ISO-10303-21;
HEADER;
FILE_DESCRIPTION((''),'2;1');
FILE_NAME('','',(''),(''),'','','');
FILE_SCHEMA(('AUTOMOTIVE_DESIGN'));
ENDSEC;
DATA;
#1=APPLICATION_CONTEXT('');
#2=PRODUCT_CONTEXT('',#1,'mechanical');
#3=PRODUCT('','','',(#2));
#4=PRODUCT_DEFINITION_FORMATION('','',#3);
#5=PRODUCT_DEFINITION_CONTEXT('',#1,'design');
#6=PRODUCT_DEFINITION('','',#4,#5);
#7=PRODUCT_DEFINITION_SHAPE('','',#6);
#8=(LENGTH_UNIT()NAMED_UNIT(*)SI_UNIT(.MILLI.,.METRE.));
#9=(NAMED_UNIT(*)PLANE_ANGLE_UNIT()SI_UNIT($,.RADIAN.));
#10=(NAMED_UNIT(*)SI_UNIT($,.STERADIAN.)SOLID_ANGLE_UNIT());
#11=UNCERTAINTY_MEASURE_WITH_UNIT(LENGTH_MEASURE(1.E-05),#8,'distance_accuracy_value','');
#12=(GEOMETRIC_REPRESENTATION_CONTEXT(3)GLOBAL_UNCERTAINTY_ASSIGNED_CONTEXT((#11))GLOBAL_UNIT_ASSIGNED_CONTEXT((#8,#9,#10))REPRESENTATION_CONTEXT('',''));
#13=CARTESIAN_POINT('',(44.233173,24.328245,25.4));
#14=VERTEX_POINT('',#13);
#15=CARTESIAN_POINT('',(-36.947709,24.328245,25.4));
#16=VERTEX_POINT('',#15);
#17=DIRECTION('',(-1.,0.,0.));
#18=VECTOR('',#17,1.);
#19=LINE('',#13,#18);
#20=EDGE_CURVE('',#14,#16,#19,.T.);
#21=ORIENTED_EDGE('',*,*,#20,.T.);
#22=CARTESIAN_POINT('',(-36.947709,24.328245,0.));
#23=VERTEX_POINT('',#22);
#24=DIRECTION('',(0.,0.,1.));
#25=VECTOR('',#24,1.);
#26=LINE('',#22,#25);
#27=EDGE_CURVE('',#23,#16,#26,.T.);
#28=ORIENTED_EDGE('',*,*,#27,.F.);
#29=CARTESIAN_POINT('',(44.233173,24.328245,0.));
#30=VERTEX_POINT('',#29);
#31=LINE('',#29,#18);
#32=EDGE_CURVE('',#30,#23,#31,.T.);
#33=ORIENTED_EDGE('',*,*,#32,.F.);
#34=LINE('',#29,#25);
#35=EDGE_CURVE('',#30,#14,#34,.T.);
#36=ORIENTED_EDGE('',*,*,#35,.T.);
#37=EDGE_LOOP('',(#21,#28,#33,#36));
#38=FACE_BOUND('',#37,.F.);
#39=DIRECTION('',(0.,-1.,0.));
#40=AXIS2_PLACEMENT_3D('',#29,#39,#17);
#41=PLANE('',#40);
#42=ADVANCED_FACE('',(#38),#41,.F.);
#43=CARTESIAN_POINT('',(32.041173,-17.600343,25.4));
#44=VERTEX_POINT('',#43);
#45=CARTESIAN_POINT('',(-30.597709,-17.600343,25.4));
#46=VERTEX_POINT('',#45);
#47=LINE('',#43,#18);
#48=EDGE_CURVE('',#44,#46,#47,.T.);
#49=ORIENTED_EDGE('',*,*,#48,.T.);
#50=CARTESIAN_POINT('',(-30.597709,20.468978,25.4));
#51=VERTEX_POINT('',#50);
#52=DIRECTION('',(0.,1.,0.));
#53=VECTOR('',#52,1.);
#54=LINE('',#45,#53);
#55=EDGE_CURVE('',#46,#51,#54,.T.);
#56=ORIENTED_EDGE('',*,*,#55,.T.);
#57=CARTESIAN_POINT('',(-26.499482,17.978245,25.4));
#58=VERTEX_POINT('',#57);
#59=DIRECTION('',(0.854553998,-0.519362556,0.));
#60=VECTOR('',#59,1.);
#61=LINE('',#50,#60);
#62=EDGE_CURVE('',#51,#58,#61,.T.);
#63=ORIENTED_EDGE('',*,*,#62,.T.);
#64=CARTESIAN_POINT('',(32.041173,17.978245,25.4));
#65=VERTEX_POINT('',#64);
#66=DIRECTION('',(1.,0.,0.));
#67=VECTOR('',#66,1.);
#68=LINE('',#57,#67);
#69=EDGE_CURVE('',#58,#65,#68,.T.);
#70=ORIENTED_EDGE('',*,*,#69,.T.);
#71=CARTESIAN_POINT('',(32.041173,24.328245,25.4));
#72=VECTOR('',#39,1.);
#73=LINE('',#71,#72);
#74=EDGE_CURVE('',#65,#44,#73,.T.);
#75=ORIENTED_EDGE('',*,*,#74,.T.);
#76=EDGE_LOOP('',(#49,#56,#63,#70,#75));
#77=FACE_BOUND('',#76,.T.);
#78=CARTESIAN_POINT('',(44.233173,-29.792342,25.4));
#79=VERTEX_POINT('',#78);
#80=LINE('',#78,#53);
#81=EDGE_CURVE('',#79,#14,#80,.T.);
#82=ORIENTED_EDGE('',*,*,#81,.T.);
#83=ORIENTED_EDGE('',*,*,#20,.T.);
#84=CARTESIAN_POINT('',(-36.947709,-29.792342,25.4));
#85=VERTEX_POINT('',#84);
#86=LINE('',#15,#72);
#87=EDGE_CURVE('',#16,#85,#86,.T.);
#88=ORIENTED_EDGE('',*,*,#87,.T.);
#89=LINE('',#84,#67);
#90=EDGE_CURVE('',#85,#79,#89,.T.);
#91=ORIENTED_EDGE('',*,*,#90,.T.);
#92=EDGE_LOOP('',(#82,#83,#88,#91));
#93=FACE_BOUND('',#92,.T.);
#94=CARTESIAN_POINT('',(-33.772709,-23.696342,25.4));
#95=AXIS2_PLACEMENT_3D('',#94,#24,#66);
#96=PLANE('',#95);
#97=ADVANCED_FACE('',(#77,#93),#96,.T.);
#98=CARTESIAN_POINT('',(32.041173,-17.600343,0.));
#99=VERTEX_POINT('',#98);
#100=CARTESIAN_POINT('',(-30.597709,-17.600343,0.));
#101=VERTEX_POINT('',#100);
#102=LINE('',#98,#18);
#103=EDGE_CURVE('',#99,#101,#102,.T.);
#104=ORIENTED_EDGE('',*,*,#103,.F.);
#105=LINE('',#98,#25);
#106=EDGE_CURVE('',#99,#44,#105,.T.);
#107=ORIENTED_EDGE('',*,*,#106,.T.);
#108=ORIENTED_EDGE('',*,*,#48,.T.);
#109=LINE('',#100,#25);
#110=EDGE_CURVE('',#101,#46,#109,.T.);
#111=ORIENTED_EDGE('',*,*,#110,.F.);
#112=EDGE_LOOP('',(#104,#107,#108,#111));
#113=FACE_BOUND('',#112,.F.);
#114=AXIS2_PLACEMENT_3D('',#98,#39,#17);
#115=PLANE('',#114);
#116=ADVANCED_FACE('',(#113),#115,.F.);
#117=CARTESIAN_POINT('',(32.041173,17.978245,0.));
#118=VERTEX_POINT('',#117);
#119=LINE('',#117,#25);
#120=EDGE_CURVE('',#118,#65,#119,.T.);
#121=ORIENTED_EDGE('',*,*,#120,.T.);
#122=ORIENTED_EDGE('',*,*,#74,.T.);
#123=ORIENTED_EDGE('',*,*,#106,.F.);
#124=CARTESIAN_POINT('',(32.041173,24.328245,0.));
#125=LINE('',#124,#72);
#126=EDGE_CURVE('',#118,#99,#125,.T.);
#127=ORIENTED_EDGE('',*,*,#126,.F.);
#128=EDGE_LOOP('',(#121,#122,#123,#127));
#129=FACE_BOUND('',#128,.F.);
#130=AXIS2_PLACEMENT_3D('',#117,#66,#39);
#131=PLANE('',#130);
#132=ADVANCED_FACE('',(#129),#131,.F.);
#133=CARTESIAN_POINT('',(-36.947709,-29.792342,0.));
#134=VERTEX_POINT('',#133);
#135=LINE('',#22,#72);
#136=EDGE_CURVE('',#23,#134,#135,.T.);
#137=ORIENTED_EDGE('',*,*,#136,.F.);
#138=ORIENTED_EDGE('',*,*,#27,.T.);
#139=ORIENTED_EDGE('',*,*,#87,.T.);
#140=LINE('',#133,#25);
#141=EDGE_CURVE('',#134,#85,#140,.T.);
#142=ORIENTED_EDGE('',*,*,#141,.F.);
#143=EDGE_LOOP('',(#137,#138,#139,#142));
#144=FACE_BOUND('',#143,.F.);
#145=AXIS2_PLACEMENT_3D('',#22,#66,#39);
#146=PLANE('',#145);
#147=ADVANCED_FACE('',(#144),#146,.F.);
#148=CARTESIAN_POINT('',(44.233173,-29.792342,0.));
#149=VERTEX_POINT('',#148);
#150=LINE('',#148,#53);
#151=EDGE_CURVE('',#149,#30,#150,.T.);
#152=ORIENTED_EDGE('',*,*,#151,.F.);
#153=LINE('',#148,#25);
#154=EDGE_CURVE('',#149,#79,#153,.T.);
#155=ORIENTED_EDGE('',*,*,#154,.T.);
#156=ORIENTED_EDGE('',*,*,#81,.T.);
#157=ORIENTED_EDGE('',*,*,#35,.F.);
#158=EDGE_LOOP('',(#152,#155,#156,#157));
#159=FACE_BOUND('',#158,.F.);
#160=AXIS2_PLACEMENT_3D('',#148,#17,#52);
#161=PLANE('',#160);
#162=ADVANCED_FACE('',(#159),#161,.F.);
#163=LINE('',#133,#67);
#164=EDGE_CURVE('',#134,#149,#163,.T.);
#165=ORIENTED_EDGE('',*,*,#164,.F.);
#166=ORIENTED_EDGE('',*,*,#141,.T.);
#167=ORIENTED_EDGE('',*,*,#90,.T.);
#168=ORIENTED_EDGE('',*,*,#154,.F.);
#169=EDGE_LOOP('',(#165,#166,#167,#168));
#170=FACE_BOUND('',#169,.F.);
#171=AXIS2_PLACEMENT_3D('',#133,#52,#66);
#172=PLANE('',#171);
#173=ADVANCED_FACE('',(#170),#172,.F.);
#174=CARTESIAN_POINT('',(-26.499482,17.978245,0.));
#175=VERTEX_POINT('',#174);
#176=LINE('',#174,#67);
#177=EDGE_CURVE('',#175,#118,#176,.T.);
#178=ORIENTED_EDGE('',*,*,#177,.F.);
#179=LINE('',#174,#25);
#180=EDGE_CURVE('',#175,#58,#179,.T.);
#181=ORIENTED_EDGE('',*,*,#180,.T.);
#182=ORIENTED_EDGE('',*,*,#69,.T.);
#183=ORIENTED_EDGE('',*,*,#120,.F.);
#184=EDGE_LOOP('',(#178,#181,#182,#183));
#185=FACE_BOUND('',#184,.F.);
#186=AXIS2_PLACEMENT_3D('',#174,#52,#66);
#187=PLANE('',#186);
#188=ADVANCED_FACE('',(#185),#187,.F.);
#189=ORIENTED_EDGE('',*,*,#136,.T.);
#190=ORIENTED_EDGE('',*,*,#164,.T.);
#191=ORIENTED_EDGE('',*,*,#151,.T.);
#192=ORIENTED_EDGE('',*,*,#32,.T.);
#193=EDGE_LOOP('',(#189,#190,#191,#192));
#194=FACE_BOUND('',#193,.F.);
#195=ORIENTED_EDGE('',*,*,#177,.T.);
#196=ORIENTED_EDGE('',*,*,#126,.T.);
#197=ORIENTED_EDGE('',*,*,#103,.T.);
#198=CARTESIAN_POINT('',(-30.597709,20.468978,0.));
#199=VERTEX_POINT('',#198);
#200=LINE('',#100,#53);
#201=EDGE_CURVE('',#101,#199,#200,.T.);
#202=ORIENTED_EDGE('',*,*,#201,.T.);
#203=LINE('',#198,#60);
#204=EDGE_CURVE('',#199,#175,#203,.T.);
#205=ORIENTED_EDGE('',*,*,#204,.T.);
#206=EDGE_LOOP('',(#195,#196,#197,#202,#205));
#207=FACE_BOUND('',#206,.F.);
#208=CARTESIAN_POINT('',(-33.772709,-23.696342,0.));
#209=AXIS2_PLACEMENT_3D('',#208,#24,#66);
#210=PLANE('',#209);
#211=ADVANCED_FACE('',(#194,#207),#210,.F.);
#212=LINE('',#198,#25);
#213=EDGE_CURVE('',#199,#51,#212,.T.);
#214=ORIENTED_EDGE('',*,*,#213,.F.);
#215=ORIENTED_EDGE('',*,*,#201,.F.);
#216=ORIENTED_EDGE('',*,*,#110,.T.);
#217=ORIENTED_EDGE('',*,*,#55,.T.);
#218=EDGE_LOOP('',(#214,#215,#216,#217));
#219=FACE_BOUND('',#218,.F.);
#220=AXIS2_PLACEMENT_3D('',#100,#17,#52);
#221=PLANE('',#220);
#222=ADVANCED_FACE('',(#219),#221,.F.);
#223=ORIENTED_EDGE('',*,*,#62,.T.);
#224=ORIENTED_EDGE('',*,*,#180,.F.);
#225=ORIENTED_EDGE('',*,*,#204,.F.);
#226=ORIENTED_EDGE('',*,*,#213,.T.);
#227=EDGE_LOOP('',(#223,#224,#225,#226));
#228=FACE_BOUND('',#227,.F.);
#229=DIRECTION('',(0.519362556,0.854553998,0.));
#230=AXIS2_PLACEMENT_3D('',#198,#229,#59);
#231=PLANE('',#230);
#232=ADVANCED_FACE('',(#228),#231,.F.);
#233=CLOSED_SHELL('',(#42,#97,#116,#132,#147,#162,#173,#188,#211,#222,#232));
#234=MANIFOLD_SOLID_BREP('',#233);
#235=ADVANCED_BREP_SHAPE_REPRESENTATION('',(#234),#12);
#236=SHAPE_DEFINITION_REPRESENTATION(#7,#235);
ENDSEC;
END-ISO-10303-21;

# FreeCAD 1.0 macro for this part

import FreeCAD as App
import Part
import Sketcher
from FreeCAD import Vector
Q = App.Units.Quantity


def add_polygon(sketch, points):
    """Adds a closed chain of lines whose ends are joined by coincident constraints."""
    first, n = sketch.GeometryCount, len(points)
    for a, b in zip(points, points[1:] + points[:1]):
        sketch.addGeometry(Part.LineSegment(App.Vector(*a, 0), App.Vector(*b, 0)), False)
    for i in range(n):
        sketch.addConstraint(Sketcher.Constraint("Coincident", first + i, 2, first + (i + 1) % n, 1))

doc = App.newDocument("Part")
body = doc.addObject("PartDesign::Body", "Body")

# Sketch on XY plane
sketch1 = body.newObject("Sketcher::SketchObject", "Sketch")
sketch1.AttachmentSupport = (doc.getObject("XY_Plane"), [""])
sketch1.MapMode = "FlatFace"
add_polygon(sketch1, [(-36.9, -29.8), (44.2, -29.8), (44.2, 24.3), (-36.9, 24.3)])  # lines 0-3
add_polygon(sketch1, [(32, 18), (32, -17.6), (-30.6, -17.6), (-30.6, 20.5), (-26.5, 18)])  # lines 4-8
sketch1.addConstraint([
    Sketcher.Constraint("Horizontal", 0),
    Sketcher.Constraint("Vertical", 1),
    Sketcher.Constraint("Horizontal", 2),
    Sketcher.Constraint("Vertical", 3),
    Sketcher.Constraint("Vertical", 4),
    Sketcher.Constraint("Horizontal", 5),
    Sketcher.Constraint("Vertical", 6),
    Sketcher.Constraint("Horizontal", 8),
    Sketcher.Constraint("DistanceX", 4, 2, 0, 2, Q("0.48 in")),
    Sketcher.Constraint("DistanceY", 0, 2, 4, 2, Q("0.48 in")),
    Sketcher.Constraint("DistanceX", 3, 2, 5, 2, Q("0.25 in")),
    Sketcher.Constraint("DistanceY", 7, 2, 2, 2, Q("0.25 in")),
    Sketcher.Constraint("DistanceX", 0, 1, 0, 2, 81.180882),
    Sketcher.Constraint("DistanceY", 6, 1, 6, 2, 38.06932),
    Sketcher.Constraint("Distance", 7, 4.79575),
    Sketcher.Constraint("DistanceX", 8, 1, 8, 2, 58.540655),
    Sketcher.Constraint("DistanceX", 2, 2, -1, 1, 36.947709),
    Sketcher.Constraint("DistanceY", 0, 2, -1, 1, 29.792342),
])
pad1 = body.newObject("PartDesign::Pad", "Pad")
pad1.Profile = sketch1
pad1.Length = Q("1 in")

doc.recompute()
